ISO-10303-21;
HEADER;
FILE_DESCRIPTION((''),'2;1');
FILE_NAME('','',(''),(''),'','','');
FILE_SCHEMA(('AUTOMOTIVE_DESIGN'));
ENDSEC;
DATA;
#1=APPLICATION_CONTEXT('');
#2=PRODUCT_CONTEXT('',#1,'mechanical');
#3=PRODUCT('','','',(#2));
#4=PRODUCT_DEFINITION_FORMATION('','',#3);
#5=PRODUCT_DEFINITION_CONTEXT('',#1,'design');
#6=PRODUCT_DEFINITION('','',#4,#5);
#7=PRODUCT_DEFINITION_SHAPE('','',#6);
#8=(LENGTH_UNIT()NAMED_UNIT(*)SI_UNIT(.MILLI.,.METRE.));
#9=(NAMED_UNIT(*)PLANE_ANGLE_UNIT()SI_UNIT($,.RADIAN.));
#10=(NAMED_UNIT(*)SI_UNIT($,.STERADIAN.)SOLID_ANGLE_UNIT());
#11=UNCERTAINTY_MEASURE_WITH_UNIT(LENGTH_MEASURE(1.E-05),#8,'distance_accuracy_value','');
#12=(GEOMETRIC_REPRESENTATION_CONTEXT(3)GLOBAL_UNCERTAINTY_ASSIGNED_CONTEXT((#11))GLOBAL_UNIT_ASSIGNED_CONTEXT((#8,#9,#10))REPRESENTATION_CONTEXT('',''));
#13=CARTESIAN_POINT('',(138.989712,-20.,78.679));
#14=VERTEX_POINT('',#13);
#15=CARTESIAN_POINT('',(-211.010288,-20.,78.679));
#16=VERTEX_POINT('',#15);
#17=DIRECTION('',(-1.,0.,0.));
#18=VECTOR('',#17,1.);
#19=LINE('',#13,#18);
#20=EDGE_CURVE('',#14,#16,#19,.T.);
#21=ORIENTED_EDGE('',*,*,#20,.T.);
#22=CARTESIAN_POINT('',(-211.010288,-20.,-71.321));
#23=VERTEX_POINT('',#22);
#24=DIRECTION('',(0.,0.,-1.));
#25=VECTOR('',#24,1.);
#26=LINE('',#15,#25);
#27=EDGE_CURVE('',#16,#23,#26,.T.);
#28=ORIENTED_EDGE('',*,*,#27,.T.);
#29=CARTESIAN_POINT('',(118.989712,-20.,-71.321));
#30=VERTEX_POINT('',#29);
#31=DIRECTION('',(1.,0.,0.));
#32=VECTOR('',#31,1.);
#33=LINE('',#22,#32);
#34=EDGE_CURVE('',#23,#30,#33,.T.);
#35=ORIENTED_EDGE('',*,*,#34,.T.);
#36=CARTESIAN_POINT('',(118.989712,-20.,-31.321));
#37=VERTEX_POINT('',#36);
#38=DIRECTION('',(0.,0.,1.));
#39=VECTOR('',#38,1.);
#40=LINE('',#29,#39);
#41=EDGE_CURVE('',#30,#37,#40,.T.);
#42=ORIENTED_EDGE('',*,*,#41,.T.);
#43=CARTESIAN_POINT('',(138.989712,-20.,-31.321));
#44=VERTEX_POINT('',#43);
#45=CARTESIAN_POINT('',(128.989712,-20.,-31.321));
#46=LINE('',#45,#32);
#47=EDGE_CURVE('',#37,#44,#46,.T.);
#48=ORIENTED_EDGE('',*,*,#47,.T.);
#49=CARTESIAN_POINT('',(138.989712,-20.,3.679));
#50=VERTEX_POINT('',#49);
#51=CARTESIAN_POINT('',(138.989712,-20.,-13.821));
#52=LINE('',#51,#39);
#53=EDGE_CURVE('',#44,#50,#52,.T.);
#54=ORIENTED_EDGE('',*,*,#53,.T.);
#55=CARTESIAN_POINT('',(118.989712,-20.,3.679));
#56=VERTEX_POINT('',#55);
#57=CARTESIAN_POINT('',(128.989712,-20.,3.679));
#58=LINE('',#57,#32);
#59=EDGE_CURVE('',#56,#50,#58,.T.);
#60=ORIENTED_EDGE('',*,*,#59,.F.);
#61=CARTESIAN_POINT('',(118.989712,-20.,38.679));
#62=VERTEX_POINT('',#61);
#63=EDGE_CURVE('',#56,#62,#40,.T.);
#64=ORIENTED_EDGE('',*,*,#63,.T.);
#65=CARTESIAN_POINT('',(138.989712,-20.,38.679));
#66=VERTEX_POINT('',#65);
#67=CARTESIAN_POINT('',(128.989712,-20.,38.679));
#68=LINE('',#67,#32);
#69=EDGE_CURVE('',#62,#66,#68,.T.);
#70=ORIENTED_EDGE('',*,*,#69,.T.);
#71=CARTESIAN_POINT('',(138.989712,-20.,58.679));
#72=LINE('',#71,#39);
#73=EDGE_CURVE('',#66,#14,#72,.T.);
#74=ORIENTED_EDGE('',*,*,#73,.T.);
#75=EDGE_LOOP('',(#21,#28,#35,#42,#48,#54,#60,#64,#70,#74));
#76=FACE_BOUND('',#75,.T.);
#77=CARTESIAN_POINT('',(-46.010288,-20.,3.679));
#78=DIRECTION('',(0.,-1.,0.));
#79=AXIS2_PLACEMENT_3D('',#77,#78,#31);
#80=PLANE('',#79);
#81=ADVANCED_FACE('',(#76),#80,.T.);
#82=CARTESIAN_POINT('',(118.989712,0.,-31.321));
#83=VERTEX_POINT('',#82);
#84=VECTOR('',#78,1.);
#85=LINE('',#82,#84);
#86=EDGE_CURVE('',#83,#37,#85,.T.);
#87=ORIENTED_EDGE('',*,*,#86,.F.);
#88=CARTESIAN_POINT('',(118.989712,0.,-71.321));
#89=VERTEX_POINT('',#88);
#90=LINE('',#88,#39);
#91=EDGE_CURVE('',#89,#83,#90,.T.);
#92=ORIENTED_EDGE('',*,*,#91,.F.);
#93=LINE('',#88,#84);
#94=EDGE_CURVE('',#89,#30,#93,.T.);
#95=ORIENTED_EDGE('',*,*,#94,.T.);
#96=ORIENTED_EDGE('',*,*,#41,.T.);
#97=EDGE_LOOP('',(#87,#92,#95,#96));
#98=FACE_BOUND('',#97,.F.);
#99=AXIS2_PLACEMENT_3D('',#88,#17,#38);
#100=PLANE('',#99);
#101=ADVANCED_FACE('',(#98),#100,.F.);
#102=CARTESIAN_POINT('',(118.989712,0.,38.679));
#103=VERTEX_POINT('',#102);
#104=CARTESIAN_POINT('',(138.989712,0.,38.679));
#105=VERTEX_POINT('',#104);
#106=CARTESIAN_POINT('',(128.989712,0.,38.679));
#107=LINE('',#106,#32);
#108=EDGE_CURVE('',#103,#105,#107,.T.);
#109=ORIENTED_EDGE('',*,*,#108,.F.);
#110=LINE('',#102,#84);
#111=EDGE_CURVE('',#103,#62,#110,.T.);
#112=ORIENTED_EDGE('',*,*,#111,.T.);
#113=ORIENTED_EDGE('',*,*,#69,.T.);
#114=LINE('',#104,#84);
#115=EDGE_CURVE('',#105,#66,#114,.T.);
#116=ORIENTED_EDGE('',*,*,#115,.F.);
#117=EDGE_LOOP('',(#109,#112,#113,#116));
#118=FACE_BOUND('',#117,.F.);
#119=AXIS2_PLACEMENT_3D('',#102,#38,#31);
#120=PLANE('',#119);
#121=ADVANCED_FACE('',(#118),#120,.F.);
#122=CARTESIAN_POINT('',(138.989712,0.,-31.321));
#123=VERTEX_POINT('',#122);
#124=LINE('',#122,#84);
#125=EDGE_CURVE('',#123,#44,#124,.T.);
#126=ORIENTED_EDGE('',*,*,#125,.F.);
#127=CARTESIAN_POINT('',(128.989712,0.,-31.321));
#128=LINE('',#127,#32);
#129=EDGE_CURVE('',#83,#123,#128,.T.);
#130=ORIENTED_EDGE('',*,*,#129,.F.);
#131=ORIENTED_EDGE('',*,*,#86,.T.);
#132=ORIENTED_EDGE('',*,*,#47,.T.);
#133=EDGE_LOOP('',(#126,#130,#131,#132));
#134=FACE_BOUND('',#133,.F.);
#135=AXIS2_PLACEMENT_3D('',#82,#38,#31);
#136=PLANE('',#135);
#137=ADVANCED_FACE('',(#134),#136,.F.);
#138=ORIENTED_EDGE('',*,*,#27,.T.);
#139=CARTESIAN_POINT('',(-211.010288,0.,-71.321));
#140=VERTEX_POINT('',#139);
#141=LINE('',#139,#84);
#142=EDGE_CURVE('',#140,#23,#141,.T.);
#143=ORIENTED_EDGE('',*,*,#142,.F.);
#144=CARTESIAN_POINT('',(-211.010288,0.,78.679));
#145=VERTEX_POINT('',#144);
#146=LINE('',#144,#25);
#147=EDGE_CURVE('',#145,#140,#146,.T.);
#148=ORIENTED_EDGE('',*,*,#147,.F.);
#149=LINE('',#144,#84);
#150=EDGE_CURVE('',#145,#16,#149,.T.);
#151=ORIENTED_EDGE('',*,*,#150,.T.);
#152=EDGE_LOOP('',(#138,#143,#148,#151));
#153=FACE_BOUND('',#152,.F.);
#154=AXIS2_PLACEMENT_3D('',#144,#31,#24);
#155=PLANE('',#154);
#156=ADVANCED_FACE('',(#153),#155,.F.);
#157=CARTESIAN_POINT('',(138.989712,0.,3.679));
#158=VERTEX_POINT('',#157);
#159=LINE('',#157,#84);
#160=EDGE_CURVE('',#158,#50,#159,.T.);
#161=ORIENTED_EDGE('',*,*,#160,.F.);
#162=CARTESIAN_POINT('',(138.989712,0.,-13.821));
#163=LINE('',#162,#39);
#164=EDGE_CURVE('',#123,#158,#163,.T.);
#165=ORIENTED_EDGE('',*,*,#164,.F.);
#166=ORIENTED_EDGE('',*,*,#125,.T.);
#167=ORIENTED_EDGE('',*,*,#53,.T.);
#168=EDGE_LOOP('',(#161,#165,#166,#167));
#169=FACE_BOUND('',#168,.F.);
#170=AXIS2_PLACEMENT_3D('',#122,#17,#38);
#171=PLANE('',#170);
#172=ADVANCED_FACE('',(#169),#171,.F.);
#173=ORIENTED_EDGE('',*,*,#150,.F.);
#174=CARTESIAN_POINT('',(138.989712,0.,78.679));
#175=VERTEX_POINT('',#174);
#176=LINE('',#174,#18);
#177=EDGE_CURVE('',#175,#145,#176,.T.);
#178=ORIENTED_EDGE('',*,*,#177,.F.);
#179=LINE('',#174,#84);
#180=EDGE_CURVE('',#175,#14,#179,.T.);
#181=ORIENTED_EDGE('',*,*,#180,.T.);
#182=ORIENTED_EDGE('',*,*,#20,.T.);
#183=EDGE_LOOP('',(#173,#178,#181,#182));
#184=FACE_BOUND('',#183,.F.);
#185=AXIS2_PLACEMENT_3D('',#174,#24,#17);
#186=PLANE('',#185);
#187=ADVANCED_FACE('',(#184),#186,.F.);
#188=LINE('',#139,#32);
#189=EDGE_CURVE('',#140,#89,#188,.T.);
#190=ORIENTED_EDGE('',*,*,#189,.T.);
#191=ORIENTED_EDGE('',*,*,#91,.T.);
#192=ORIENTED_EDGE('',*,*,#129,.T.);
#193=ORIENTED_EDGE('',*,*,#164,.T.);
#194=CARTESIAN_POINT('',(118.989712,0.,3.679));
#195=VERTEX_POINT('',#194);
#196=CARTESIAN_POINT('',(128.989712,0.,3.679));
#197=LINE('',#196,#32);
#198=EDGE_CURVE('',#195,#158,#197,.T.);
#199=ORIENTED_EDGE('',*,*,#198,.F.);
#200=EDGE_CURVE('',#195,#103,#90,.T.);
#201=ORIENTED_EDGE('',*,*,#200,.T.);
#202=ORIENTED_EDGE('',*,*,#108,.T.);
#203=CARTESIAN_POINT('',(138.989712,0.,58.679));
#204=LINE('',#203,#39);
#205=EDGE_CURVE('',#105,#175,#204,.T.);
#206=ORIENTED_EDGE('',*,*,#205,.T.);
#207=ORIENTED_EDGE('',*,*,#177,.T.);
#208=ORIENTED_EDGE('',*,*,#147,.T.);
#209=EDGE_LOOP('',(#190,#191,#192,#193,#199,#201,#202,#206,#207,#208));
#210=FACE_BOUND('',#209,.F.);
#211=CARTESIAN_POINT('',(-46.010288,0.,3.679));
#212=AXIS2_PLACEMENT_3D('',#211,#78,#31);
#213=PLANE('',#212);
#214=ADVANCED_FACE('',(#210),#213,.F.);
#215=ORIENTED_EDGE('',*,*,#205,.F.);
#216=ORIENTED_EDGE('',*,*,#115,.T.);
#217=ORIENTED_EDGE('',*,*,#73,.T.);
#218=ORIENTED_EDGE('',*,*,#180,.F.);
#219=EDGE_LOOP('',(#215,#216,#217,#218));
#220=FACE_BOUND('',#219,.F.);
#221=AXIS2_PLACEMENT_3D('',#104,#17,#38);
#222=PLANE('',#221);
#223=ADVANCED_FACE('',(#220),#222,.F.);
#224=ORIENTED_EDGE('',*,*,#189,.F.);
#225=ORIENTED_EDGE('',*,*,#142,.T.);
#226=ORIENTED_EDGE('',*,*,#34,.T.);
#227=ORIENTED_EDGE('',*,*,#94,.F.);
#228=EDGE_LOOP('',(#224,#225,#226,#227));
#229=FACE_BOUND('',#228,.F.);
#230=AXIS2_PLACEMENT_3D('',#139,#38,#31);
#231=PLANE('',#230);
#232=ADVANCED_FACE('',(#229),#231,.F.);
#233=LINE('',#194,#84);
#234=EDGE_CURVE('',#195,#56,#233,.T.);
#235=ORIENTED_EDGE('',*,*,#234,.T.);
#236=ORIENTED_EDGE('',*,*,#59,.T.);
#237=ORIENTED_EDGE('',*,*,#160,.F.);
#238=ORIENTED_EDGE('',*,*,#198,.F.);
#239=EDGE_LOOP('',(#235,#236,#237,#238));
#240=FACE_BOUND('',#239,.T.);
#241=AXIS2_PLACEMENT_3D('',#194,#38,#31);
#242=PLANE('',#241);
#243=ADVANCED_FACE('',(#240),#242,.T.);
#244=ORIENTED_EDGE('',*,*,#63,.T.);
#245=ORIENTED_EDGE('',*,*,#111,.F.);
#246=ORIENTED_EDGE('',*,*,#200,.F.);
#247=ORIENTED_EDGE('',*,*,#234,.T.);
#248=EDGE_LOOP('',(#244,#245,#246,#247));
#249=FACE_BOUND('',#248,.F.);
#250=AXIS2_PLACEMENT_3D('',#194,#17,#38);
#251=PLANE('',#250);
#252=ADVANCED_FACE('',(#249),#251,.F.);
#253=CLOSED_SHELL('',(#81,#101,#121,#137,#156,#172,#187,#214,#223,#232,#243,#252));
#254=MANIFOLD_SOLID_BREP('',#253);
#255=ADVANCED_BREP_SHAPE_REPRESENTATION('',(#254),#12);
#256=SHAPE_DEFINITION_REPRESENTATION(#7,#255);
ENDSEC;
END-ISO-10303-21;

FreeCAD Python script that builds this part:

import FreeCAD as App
import Part
import Sketcher
Q = App.Units.Quantity

doc = App.newDocument("Part")
body = doc.addObject("PartDesign::Body", "Body")

sketch1 = doc.addObject("Sketcher::SketchObject", "Sketch")
body.addObject(sketch1)
sketch1.AttachmentSupport = (doc.XZ_Plane, [""])
sketch1.MapMode = "FlatFace"
sketch1.addGeometry([
    Part.LineSegment(App.Vector(-211, 79, 0), App.Vector(-211, -71, 0)),
    Part.LineSegment(App.Vector(-211, -71, 0), App.Vector(119, -71, 0)),
    Part.LineSegment(App.Vector(119, -71, 0), App.Vector(119, -31, 0)),
    Part.LineSegment(App.Vector(119, -31, 0), App.Vector(139, -31, 0)),
    Part.LineSegment(App.Vector(139, -31, 0), App.Vector(139, 4, 0)),
    Part.LineSegment(App.Vector(139, 4, 0), App.Vector(119, 4, 0)),
    Part.LineSegment(App.Vector(119, 4, 0), App.Vector(119, 39, 0)),
    Part.LineSegment(App.Vector(119, 39, 0), App.Vector(139, 39, 0)),
    Part.LineSegment(App.Vector(139, 39, 0), App.Vector(139, 79, 0)),
    Part.LineSegment(App.Vector(139, 79, 0), App.Vector(-211, 79, 0)),
], False)
sketch1.addConstraint([
    Sketcher.Constraint("Coincident", 0, 2, 1, 1),
    Sketcher.Constraint("Coincident", 1, 2, 2, 1),
    Sketcher.Constraint("Coincident", 2, 2, 3, 1),
    Sketcher.Constraint("Coincident", 3, 2, 4, 1),
    Sketcher.Constraint("Coincident", 4, 2, 5, 1),
    Sketcher.Constraint("Coincident", 5, 2, 6, 1),
    Sketcher.Constraint("Coincident", 6, 2, 7, 1),
    Sketcher.Constraint("Coincident", 7, 2, 8, 1),
    Sketcher.Constraint("Coincident", 8, 2, 9, 1),
    Sketcher.Constraint("Coincident", 9, 2, 0, 1),
    Sketcher.Constraint("Vertical", 0),
    Sketcher.Constraint("Horizontal", 1),
    Sketcher.Constraint("Vertical", 2),
    Sketcher.Constraint("Horizontal", 3),
    Sketcher.Constraint("Vertical", 4),
    Sketcher.Constraint("Horizontal", 5),
    Sketcher.Constraint("Vertical", 6),
    Sketcher.Constraint("Horizontal", 7),
    Sketcher.Constraint("Vertical", 8),
    Sketcher.Constraint("Horizontal", 9),
    Sketcher.Constraint("Vertical", 2, 2, 5, 2),
    Sketcher.Constraint("Vertical", 4, 2, 7, 2),
    Sketcher.Constraint("Equal", 4, 6),
    Sketcher.Constraint("Equal", 2, 8),
    Sketcher.Constraint("DistanceX", 1, 1, 1, 2, Q("330 mm")),
    Sketcher.Constraint("DistanceX", 3, 1, 3, 2, Q("20 mm")),
    Sketcher.Constraint("DistanceY", 0, 2, 0, 1, Q("150 mm")),
    Sketcher.Constraint("DistanceY", 2, 1, 2, 2, Q("40 mm")),
    Sketcher.Constraint("DistanceY", 0, 2, -1, 1, Q("71.321 mm")),
    Sketcher.Constraint("DistanceX", 0, 2, -1, 1, Q("211.010288 mm")),
])
pad1 = doc.addObject("PartDesign::Pad", "Pad")
body.addObject(pad1)
pad1.Profile = sketch1
pad1.Length = 20

doc.recompute()
